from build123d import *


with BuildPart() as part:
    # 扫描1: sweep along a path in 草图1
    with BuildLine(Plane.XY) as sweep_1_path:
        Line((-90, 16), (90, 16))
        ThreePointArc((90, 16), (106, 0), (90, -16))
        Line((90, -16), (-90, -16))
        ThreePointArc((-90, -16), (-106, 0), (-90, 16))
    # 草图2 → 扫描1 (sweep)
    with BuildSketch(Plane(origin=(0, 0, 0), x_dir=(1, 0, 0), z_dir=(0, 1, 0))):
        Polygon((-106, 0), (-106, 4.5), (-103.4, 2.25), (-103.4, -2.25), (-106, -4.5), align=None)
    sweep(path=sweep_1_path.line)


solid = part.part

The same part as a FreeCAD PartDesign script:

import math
import FreeCAD as App
import Part
import Sketcher
from FreeCAD import Vector

doc = App.newDocument("Part")
body = doc.addObject("PartDesign::Body", "Body")

# Sketch on XZ plane
sketch1 = doc.addObject("Sketcher::SketchObject", "Sketch")
body.addObject(sketch1)
sketch1.AttachmentSupport = (doc.XZ_Plane, [""])
sketch1.MapMode = "FlatFace"
sketch1.addGeometry(Part.LineSegment(Vector(-106, -4.5, 0), Vector(-106, 4.5, 0)), False)
sketch1.addGeometry(Part.LineSegment(Vector(-106, 4.5, 0), Vector(-103.4, 2.2, 0)), False)
sketch1.addGeometry(Part.LineSegment(Vector(-103.4, 2.2, 0), Vector(-103.4, -2.2, 0)), False)
sketch1.addGeometry(Part.LineSegment(Vector(-103.4, -2.2, 0), Vector(-106, -4.5, 0)), False)
sketch1.addConstraint(Sketcher.Constraint("Coincident", 0, 2, 1, 1))
sketch1.addConstraint(Sketcher.Constraint("Coincident", 1, 2, 2, 1))
sketch1.addConstraint(Sketcher.Constraint("Coincident", 2, 2, 3, 1))
sketch1.addConstraint(Sketcher.Constraint("Coincident", 3, 2, 0, 1))
sketch1.addConstraint(Sketcher.Constraint("Vertical", 0))
sketch1.addConstraint(Sketcher.Constraint("Vertical", 2))
sketch1.addConstraint(Sketcher.Constraint("Equal", 1, 3))
sketch1.addConstraint(Sketcher.Constraint("DistanceY", 0, 1, 0, 2, 9.0))
sketch1.addConstraint(Sketcher.Constraint("DistanceY", 2, 2, 2, 1, 4.5))
sketch1.addConstraint(Sketcher.Constraint("DistanceX", 0, 2, -1, 1, 106.0))
sketch1.addConstraint(Sketcher.Constraint("DistanceY", -1, 1, 0, 2, 4.5))
sketch1.addConstraint(Sketcher.Constraint("DistanceX", 1, 2, -1, 1, 103.4))

# Sketch on XY plane
sketch2 = doc.addObject("Sketcher::SketchObject", "Sketch001")
body.addObject(sketch2)
sketch2.AttachmentSupport = (doc.XY_Plane, [""])
sketch2.MapMode = "FlatFace"
sketch2.addGeometry(Part.LineSegment(Vector(-90, 16, 0), Vector(90, 16, 0)), False)
sketch2.addGeometry(Part.ArcOfCircle(Part.Circle(Vector(90, 0, 0), Vector(0, 0, 1), 16), math.radians(-90), math.radians(90)), False)
sketch2.addGeometry(Part.LineSegment(Vector(90, -16, 0), Vector(-90, -16, 0)), False)
sketch2.addGeometry(Part.ArcOfCircle(Part.Circle(Vector(-90, 0, 0), Vector(0, 0, 1), 16), math.radians(90), math.radians(270)), False)
sketch2.addConstraint(Sketcher.Constraint("Tangent", 0, 2, 1, 2))
sketch2.addConstraint(Sketcher.Constraint("Tangent", 1, 1, 2, 1))
sketch2.addConstraint(Sketcher.Constraint("Tangent", 2, 2, 3, 2))
sketch2.addConstraint(Sketcher.Constraint("Tangent", 3, 1, 0, 1))
sketch2.addConstraint(Sketcher.Constraint("Horizontal", 0))
sketch2.addConstraint(Sketcher.Constraint("Horizontal", 2))
sketch2.addConstraint(Sketcher.Constraint("Symmetric", 1, 3, 3, 3, -1, 1))
sketch2.addConstraint(Sketcher.Constraint("Radius", 1, 16.0))
sketch2.addConstraint(Sketcher.Constraint("DistanceX", 0, 1, 0, 2, 180.0))
doc.recompute()

additivepipe = doc.addObject("PartDesign::AdditivePipe", "AdditivePipe")
body.addObject(additivepipe)
additivepipe.Profile = sketch1
additivepipe.Spine = (sketch2, ["Edge1", "Edge2", "Edge3", "Edge4"])

doc.recompute()
